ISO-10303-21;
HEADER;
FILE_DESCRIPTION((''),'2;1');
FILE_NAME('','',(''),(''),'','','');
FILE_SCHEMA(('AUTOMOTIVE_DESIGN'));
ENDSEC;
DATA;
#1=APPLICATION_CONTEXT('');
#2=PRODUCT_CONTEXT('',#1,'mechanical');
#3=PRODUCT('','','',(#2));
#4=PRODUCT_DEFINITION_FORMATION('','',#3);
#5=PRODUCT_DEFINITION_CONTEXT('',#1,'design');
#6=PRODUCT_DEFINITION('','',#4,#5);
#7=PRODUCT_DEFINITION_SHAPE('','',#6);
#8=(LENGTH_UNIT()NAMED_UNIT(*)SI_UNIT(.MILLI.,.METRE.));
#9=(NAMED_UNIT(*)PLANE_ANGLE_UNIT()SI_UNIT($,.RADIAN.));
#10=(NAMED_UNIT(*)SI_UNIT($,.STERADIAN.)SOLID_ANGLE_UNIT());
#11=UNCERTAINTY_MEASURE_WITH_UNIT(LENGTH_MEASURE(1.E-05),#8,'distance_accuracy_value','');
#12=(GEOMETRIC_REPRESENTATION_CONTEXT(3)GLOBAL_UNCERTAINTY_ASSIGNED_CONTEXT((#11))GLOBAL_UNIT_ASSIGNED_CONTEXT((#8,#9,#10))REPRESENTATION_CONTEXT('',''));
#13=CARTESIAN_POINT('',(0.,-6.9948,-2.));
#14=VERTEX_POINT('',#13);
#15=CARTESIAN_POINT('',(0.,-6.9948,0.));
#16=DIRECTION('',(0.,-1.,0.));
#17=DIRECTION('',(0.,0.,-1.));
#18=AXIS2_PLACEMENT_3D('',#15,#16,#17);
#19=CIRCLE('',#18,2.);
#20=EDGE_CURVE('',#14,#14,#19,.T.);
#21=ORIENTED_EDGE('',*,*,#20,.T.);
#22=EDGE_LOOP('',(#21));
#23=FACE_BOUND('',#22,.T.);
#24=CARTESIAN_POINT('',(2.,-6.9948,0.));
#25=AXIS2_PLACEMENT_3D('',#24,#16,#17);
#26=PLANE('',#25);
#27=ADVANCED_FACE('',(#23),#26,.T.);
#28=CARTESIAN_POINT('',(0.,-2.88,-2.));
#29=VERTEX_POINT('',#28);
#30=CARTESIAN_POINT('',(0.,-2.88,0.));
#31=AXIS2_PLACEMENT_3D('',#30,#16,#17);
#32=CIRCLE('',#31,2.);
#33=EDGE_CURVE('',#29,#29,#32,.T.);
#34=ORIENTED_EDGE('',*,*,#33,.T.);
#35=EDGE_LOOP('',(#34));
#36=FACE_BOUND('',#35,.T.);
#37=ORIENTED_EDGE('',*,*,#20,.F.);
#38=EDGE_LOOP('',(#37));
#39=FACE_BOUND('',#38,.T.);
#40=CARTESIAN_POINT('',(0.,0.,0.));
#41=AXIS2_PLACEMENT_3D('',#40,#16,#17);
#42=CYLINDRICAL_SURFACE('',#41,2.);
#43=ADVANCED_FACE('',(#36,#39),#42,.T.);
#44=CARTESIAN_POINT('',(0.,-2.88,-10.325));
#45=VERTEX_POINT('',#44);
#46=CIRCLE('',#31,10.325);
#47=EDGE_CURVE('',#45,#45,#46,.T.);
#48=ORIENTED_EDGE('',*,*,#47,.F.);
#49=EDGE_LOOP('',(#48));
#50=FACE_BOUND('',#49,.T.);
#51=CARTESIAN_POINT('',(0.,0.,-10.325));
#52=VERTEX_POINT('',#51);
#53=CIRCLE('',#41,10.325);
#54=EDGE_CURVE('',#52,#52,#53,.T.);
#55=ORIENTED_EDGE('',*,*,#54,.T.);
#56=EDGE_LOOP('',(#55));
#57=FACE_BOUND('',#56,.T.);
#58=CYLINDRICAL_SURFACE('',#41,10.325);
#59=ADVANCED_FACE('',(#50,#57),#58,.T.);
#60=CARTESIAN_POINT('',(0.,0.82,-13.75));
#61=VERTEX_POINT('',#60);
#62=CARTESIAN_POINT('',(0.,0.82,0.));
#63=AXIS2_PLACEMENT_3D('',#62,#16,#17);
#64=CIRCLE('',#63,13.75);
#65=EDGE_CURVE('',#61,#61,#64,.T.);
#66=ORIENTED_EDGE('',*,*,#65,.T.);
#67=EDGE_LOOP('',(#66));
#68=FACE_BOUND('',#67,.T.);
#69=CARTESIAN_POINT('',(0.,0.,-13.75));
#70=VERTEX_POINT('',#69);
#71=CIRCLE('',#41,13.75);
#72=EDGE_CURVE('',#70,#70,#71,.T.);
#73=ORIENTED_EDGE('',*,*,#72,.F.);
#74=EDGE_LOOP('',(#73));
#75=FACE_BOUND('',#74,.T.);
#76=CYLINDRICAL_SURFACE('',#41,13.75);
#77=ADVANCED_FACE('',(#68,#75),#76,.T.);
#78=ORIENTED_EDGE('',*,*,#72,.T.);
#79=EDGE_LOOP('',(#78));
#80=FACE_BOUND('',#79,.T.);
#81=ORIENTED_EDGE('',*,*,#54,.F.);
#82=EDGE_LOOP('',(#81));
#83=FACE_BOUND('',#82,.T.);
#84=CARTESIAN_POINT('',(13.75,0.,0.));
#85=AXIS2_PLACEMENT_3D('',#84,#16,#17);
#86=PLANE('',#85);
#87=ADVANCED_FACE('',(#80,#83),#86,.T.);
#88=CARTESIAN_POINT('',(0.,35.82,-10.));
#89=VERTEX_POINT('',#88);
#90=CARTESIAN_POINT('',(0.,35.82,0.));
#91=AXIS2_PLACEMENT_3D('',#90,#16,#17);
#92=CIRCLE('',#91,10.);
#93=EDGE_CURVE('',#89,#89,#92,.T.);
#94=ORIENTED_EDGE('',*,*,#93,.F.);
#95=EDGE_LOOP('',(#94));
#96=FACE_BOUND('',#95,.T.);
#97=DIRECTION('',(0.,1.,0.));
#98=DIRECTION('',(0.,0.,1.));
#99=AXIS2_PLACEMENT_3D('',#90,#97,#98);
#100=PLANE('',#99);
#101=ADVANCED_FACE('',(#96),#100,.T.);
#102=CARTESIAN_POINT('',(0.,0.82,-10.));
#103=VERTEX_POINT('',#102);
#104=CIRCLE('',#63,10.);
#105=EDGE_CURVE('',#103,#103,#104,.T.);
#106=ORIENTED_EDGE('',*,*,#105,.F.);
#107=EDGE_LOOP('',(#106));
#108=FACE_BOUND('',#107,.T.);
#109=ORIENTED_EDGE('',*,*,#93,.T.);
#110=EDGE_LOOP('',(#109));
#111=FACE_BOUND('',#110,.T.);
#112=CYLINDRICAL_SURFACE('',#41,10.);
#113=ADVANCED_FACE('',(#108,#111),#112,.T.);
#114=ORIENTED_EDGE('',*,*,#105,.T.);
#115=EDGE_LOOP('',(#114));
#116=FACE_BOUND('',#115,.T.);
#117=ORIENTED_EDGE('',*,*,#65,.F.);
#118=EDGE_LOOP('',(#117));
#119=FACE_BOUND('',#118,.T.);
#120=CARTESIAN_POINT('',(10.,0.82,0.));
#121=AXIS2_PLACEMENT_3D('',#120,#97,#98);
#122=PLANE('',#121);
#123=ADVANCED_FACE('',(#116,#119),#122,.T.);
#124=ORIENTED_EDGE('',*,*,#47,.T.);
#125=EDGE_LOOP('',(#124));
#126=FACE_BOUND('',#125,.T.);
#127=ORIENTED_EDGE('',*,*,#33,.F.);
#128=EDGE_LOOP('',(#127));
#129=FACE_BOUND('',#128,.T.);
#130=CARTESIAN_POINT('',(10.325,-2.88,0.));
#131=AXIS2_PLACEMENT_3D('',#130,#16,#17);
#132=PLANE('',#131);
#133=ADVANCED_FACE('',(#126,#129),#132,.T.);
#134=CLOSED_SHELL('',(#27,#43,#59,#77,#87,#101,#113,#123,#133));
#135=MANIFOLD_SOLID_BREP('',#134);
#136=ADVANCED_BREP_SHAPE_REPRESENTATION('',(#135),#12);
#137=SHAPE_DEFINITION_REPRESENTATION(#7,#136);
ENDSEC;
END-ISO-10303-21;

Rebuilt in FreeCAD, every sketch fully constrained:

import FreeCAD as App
import Part
import Sketcher
from FreeCAD import Vector


def add_polygon(sketch, points):
    """Adds a closed chain of lines whose ends are joined by coincident constraints."""
    first, n = sketch.GeometryCount, len(points)
    for a, b in zip(points, points[1:] + points[:1]):
        sketch.addGeometry(Part.LineSegment(App.Vector(*a, 0), App.Vector(*b, 0)), False)
    for i in range(n):
        sketch.addConstraint(Sketcher.Constraint("Coincident", first + i, 2, first + (i + 1) % n, 1))

doc = App.newDocument("Part")
body = doc.addObject("PartDesign::Body", "Body")

sketch1 = body.newObject("Sketcher::SketchObject", "Sketch")
sketch1.AttachmentSupport = (doc.getObject("XY_Plane"), [""])
sketch1.MapMode = "FlatFace"
add_polygon(sketch1, [(10, 35.82), (0, 35.82), (0, -6.9948), (2, -6.9948), (2, -2.88), (10.325, -2.88), (10.325, 0), (13.75, 0), (13.75, 0.82), (10, 0.82)])
sketch1.addConstraint(Sketcher.Constraint("Horizontal", 0))
sketch1.addConstraint(Sketcher.Constraint("Vertical", 1))
sketch1.addConstraint(Sketcher.Constraint("Horizontal", 2))
sketch1.addConstraint(Sketcher.Constraint("Vertical", 3))
sketch1.addConstraint(Sketcher.Constraint("Horizontal", 4))
sketch1.addConstraint(Sketcher.Constraint("Vertical", 5))
sketch1.addConstraint(Sketcher.Constraint("Horizontal", 6))
sketch1.addConstraint(Sketcher.Constraint("Vertical", 7))
sketch1.addConstraint(Sketcher.Constraint("Horizontal", 8))
sketch1.addConstraint(Sketcher.Constraint("Vertical", 9))
sketch1.addConstraint(Sketcher.Constraint("PointOnObject", 0, 2, -2))
sketch1.addConstraint(Sketcher.Constraint("PointOnObject", 5, 2, -1))
sketch1.addConstraint(Sketcher.Constraint("DistanceX", 0, 2, 0, 1, 10.0))
sketch1.addConstraint(Sketcher.Constraint("DistanceX", 2, 1, 2, 2, 2.0))
sketch1.addConstraint(Sketcher.Constraint("DistanceY", 9, 1, 9, 2, 35.0))
sketch1.addConstraint(Sketcher.Constraint("DistanceX", 8, 2, 8, 1, 3.75))
sketch1.addConstraint(Sketcher.Constraint("DistanceY", 5, 1, 5, 2, 2.88))
sketch1.addConstraint(Sketcher.Constraint("DistanceY", 7, 1, 7, 2, 0.82))
sketch1.addConstraint(Sketcher.Constraint("DistanceX", 4, 1, 4, 2, 8.325))
sketch1.addConstraint(Sketcher.Constraint("DistanceY", 1, 2, 1, 1, 42.8148))
revolution = body.newObject("PartDesign::Revolution", "Revolution")
revolution.Profile = sketch1
revolution.ReferenceAxis = (sketch1, ["V_Axis"])
revolution.Angle = 360

doc.recompute()
